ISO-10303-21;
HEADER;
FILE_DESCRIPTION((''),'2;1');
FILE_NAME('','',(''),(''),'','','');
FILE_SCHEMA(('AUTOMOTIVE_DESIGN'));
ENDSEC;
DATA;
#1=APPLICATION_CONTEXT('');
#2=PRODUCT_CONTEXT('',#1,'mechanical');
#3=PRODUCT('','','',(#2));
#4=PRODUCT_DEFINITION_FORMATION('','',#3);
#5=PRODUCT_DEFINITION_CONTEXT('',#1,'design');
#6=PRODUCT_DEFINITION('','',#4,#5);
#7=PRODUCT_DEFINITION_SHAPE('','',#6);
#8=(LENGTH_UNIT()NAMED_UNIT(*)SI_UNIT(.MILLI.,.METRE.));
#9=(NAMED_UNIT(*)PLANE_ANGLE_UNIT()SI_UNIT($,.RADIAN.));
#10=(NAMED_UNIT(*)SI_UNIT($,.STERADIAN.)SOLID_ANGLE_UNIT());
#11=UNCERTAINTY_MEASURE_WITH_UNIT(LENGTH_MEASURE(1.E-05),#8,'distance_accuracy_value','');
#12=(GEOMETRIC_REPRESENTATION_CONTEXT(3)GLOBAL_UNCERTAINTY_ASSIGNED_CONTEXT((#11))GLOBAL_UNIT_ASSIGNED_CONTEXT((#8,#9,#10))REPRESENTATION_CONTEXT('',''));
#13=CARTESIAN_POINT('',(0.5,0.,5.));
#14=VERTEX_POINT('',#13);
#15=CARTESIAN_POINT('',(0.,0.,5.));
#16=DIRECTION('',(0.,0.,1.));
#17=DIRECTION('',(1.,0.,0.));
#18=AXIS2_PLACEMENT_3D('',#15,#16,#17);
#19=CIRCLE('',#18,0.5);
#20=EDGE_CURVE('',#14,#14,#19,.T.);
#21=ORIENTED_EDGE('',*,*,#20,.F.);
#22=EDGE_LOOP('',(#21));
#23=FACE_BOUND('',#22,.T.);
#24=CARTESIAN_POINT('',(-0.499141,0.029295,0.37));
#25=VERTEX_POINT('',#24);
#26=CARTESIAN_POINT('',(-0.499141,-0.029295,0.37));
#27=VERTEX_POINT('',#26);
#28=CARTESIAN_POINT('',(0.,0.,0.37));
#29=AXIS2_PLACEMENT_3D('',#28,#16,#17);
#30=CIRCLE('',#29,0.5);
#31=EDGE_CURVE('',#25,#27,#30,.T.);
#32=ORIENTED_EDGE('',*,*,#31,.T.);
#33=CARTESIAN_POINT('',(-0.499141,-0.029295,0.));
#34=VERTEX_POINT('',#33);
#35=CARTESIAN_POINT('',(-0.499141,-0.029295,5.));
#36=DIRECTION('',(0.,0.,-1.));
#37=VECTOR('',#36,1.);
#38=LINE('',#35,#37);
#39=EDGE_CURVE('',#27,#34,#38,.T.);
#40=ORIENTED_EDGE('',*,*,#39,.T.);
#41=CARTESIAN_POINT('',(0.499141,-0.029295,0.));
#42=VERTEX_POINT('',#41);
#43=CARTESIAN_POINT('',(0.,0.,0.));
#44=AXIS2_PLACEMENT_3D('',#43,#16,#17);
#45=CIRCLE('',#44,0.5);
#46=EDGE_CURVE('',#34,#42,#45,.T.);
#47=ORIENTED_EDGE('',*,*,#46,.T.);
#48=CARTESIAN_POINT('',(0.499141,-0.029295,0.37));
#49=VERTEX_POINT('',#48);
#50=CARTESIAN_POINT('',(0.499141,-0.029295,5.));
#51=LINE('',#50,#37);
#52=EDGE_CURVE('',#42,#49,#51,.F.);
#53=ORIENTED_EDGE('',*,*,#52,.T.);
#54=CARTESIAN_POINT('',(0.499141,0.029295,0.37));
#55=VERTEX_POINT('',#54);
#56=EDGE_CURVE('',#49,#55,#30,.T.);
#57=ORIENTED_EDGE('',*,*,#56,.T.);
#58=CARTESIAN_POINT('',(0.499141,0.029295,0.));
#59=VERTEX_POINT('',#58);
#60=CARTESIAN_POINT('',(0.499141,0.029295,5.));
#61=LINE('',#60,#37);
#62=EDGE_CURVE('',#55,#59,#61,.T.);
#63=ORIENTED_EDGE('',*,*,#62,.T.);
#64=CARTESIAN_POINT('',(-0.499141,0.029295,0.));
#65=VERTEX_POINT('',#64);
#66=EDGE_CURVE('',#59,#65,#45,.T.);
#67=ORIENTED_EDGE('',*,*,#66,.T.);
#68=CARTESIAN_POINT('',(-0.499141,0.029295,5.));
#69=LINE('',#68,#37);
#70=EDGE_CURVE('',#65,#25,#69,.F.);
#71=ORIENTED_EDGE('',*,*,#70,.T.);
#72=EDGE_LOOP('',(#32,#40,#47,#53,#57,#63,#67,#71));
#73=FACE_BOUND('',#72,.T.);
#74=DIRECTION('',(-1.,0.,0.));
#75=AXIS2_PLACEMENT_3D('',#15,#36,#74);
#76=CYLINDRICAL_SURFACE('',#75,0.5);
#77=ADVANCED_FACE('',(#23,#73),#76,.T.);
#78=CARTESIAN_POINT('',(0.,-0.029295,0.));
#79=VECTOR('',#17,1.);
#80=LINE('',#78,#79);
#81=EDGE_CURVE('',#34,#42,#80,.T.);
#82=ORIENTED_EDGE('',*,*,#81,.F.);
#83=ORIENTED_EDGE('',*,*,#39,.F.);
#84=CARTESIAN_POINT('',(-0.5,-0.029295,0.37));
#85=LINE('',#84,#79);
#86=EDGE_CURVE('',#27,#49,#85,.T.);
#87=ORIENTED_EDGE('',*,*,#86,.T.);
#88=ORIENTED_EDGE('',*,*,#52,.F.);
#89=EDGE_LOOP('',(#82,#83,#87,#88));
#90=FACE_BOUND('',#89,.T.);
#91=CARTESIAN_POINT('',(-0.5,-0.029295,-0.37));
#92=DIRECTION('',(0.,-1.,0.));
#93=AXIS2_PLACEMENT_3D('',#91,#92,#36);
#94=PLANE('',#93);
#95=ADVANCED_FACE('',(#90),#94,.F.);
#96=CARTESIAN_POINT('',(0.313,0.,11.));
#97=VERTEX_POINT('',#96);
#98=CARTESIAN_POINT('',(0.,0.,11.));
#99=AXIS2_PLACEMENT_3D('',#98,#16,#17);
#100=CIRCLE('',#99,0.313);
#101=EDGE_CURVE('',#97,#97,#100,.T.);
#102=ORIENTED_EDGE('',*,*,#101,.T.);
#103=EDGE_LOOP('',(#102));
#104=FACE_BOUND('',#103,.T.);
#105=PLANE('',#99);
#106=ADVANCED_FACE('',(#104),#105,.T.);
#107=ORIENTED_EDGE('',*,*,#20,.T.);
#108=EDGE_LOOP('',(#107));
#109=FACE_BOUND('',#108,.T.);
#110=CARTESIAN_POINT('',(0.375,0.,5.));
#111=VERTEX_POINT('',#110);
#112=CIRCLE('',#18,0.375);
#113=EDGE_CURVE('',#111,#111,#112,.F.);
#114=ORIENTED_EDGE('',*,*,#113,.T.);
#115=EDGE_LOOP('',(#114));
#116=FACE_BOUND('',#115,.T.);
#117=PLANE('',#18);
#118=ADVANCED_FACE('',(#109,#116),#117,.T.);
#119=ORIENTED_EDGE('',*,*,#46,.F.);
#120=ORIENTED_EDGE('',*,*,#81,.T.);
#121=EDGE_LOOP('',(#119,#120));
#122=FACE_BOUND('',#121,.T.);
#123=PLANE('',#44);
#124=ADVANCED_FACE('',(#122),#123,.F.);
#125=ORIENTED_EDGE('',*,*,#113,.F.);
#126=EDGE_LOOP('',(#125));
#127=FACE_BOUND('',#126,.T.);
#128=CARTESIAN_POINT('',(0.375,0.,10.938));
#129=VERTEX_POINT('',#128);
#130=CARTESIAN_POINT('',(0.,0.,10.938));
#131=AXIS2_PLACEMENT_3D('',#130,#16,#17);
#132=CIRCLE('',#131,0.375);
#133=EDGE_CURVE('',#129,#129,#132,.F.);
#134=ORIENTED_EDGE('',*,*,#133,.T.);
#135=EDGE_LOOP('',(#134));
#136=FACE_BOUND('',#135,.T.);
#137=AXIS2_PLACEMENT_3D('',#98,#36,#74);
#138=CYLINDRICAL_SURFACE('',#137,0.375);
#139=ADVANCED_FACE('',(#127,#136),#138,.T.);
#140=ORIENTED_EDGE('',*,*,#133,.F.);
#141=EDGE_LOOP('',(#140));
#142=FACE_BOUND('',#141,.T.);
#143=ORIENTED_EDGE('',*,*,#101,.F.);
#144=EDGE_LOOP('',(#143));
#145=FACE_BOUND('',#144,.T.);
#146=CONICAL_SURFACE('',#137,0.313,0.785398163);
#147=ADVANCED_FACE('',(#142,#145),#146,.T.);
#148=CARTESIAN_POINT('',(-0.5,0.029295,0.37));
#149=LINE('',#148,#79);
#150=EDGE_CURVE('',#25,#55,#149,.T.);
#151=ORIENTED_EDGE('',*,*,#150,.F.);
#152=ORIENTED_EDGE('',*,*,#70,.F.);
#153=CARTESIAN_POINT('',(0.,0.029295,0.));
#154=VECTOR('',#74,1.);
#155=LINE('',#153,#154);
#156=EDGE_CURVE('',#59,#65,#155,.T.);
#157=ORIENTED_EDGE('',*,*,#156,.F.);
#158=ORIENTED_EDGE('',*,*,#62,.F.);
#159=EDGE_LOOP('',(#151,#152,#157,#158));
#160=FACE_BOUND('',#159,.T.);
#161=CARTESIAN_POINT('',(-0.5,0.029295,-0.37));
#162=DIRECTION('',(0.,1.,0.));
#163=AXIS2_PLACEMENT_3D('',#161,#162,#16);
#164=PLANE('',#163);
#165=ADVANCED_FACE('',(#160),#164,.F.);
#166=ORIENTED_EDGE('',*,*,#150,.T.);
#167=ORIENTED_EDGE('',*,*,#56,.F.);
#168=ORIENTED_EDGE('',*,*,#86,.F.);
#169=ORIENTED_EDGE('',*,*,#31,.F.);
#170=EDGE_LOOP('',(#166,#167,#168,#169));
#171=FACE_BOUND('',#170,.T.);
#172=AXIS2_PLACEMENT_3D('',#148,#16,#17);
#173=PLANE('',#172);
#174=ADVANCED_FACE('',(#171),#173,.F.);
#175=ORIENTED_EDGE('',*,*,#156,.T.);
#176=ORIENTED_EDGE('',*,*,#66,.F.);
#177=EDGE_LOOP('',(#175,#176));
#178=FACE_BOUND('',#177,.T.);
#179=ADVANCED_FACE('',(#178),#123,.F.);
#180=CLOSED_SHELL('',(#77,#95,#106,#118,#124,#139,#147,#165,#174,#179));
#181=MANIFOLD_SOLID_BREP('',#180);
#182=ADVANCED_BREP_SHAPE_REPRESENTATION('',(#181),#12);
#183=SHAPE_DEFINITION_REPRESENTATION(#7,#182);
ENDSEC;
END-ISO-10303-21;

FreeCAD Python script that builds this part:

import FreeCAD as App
import Part
import Sketcher

V = App.Vector
Q = App.Units.Quantity


def edges_at(feature, points):
    """Names of the edges that pass closest to the given points."""
    edges = feature.Shape.Edges
    near = lambda p: min(range(len(edges)), key=lambda i: edges[i].distToShape(Part.Vertex(*p))[0])
    return sorted({f"Edge{near(p) + 1}" for p in points})


def add_polygon(sketch, points):
    """Adds a closed chain of lines whose ends are joined by coincident constraints."""
    first, n = sketch.GeometryCount, len(points)
    for a, b in zip(points, points[1:] + points[:1]):
        sketch.addGeometry(Part.LineSegment(App.Vector(*a, 0), App.Vector(*b, 0)), False)
    for i in range(n):
        sketch.addConstraint(Sketcher.Constraint("Coincident", first + i, 2, first + (i + 1) % n, 1))

doc = App.newDocument("Part")
params = doc.addObject("Spreadsheet::Sheet", "Params")
for row, (alias, value) in enumerate([
    ("sketch1_diameter", "1 mm"),
    ("pad1_length", "5 mm"),
    ("sketch2_diameter", "0.75 mm"),
    ("pad2_length", "11 mm"),
    ("chamfer_size", "0.062 mm"),
    ("sketch3_height", "0.74 mm"),
], start=1):
    params.set(f"A{row}", alias)
    params.set(f"B{row}", "=" + value)
    params.setAlias(f"B{row}", alias)

body = doc.addObject("PartDesign::Body", "Body")

# Sketch on XY plane
sketch1 = body.newObject("Sketcher::SketchObject", "Sketch")
sketch1.AttachmentSupport = (doc.getObject("XY_Plane"), [""])
sketch1.MapMode = "FlatFace"
sketch1.addGeometry(Part.Circle(V(0, 0, 0), V(0, 0, 1), 0.5), False)
sketch1.addConstraint([
    Sketcher.Constraint("Coincident", 0, 3, -1, 1),
    Sketcher.Constraint("Diameter", 0, Q("1 mm")),
])
sketch1.setExpression("Constraints[1]", "Params.sketch1_diameter")
pad1 = body.newObject("PartDesign::Pad", "Pad")
pad1.Profile = sketch1
pad1.setExpression("Length", "Params.pad1_length")

# Sketch on XY plane
sketch2 = body.newObject("Sketcher::SketchObject", "Sketch001")
sketch2.AttachmentSupport = (doc.getObject("XY_Plane"), [""])
sketch2.MapMode = "FlatFace"
sketch2.addGeometry(Part.Circle(V(0, 0, 0), V(0, 0, 1), 0.38), False)
sketch2.addConstraint([
    Sketcher.Constraint("Coincident", 0, 3, -1, 1),
    Sketcher.Constraint("Diameter", 0, Q("0.75 mm")),
])
sketch2.setExpression("Constraints[1]", "Params.sketch2_diameter")
pad2 = body.newObject("PartDesign::Pad", "Pad001")
pad2.Profile = sketch2
pad2.setExpression("Length", "Params.pad2_length")
doc.recompute()

chamfer = body.newObject("PartDesign::Chamfer", "Chamfer")
chamfer.Base = (pad2, edges_at(pad2, [(-0.375, 0, 11)]))
chamfer.setExpression("Size", "Params.chamfer_size")

# Sketch on YZ plane
sketch3 = body.newObject("Sketcher::SketchObject", "Sketch002")
sketch3.AttachmentSupport = (doc.getObject("YZ_Plane"), [""])
sketch3.MapMode = "FlatFace"
add_polygon(sketch3, [(0.03, 0.37), (-0.03, 0.37), (-0.03, -0.37), (0.03, -0.37)])  # lines 0-3
sketch3.addConstraint([
    Sketcher.Constraint("Horizontal", 0),
    Sketcher.Constraint("Vertical", 1),
    Sketcher.Constraint("Horizontal", 2),
    Sketcher.Constraint("Vertical", 3),
    Sketcher.Constraint("Symmetric", 0, 2, 2, 2, -1, 1),
    Sketcher.Constraint("DistanceY", 1, 2, 1, 1, Q("0.74 mm")),
    Sketcher.Constraint("DistanceX", 0, 2, 0, 1, Q("0.05859 mm")),
])
sketch3.setExpression("Constraints[9]", "Params.sketch3_height")
pocket1 = body.newObject("PartDesign::Pocket", "Pocket")
pocket1.Profile = sketch3
pocket1.Type = "ThroughAll"
pocket1.Midplane = True

doc.recompute()
